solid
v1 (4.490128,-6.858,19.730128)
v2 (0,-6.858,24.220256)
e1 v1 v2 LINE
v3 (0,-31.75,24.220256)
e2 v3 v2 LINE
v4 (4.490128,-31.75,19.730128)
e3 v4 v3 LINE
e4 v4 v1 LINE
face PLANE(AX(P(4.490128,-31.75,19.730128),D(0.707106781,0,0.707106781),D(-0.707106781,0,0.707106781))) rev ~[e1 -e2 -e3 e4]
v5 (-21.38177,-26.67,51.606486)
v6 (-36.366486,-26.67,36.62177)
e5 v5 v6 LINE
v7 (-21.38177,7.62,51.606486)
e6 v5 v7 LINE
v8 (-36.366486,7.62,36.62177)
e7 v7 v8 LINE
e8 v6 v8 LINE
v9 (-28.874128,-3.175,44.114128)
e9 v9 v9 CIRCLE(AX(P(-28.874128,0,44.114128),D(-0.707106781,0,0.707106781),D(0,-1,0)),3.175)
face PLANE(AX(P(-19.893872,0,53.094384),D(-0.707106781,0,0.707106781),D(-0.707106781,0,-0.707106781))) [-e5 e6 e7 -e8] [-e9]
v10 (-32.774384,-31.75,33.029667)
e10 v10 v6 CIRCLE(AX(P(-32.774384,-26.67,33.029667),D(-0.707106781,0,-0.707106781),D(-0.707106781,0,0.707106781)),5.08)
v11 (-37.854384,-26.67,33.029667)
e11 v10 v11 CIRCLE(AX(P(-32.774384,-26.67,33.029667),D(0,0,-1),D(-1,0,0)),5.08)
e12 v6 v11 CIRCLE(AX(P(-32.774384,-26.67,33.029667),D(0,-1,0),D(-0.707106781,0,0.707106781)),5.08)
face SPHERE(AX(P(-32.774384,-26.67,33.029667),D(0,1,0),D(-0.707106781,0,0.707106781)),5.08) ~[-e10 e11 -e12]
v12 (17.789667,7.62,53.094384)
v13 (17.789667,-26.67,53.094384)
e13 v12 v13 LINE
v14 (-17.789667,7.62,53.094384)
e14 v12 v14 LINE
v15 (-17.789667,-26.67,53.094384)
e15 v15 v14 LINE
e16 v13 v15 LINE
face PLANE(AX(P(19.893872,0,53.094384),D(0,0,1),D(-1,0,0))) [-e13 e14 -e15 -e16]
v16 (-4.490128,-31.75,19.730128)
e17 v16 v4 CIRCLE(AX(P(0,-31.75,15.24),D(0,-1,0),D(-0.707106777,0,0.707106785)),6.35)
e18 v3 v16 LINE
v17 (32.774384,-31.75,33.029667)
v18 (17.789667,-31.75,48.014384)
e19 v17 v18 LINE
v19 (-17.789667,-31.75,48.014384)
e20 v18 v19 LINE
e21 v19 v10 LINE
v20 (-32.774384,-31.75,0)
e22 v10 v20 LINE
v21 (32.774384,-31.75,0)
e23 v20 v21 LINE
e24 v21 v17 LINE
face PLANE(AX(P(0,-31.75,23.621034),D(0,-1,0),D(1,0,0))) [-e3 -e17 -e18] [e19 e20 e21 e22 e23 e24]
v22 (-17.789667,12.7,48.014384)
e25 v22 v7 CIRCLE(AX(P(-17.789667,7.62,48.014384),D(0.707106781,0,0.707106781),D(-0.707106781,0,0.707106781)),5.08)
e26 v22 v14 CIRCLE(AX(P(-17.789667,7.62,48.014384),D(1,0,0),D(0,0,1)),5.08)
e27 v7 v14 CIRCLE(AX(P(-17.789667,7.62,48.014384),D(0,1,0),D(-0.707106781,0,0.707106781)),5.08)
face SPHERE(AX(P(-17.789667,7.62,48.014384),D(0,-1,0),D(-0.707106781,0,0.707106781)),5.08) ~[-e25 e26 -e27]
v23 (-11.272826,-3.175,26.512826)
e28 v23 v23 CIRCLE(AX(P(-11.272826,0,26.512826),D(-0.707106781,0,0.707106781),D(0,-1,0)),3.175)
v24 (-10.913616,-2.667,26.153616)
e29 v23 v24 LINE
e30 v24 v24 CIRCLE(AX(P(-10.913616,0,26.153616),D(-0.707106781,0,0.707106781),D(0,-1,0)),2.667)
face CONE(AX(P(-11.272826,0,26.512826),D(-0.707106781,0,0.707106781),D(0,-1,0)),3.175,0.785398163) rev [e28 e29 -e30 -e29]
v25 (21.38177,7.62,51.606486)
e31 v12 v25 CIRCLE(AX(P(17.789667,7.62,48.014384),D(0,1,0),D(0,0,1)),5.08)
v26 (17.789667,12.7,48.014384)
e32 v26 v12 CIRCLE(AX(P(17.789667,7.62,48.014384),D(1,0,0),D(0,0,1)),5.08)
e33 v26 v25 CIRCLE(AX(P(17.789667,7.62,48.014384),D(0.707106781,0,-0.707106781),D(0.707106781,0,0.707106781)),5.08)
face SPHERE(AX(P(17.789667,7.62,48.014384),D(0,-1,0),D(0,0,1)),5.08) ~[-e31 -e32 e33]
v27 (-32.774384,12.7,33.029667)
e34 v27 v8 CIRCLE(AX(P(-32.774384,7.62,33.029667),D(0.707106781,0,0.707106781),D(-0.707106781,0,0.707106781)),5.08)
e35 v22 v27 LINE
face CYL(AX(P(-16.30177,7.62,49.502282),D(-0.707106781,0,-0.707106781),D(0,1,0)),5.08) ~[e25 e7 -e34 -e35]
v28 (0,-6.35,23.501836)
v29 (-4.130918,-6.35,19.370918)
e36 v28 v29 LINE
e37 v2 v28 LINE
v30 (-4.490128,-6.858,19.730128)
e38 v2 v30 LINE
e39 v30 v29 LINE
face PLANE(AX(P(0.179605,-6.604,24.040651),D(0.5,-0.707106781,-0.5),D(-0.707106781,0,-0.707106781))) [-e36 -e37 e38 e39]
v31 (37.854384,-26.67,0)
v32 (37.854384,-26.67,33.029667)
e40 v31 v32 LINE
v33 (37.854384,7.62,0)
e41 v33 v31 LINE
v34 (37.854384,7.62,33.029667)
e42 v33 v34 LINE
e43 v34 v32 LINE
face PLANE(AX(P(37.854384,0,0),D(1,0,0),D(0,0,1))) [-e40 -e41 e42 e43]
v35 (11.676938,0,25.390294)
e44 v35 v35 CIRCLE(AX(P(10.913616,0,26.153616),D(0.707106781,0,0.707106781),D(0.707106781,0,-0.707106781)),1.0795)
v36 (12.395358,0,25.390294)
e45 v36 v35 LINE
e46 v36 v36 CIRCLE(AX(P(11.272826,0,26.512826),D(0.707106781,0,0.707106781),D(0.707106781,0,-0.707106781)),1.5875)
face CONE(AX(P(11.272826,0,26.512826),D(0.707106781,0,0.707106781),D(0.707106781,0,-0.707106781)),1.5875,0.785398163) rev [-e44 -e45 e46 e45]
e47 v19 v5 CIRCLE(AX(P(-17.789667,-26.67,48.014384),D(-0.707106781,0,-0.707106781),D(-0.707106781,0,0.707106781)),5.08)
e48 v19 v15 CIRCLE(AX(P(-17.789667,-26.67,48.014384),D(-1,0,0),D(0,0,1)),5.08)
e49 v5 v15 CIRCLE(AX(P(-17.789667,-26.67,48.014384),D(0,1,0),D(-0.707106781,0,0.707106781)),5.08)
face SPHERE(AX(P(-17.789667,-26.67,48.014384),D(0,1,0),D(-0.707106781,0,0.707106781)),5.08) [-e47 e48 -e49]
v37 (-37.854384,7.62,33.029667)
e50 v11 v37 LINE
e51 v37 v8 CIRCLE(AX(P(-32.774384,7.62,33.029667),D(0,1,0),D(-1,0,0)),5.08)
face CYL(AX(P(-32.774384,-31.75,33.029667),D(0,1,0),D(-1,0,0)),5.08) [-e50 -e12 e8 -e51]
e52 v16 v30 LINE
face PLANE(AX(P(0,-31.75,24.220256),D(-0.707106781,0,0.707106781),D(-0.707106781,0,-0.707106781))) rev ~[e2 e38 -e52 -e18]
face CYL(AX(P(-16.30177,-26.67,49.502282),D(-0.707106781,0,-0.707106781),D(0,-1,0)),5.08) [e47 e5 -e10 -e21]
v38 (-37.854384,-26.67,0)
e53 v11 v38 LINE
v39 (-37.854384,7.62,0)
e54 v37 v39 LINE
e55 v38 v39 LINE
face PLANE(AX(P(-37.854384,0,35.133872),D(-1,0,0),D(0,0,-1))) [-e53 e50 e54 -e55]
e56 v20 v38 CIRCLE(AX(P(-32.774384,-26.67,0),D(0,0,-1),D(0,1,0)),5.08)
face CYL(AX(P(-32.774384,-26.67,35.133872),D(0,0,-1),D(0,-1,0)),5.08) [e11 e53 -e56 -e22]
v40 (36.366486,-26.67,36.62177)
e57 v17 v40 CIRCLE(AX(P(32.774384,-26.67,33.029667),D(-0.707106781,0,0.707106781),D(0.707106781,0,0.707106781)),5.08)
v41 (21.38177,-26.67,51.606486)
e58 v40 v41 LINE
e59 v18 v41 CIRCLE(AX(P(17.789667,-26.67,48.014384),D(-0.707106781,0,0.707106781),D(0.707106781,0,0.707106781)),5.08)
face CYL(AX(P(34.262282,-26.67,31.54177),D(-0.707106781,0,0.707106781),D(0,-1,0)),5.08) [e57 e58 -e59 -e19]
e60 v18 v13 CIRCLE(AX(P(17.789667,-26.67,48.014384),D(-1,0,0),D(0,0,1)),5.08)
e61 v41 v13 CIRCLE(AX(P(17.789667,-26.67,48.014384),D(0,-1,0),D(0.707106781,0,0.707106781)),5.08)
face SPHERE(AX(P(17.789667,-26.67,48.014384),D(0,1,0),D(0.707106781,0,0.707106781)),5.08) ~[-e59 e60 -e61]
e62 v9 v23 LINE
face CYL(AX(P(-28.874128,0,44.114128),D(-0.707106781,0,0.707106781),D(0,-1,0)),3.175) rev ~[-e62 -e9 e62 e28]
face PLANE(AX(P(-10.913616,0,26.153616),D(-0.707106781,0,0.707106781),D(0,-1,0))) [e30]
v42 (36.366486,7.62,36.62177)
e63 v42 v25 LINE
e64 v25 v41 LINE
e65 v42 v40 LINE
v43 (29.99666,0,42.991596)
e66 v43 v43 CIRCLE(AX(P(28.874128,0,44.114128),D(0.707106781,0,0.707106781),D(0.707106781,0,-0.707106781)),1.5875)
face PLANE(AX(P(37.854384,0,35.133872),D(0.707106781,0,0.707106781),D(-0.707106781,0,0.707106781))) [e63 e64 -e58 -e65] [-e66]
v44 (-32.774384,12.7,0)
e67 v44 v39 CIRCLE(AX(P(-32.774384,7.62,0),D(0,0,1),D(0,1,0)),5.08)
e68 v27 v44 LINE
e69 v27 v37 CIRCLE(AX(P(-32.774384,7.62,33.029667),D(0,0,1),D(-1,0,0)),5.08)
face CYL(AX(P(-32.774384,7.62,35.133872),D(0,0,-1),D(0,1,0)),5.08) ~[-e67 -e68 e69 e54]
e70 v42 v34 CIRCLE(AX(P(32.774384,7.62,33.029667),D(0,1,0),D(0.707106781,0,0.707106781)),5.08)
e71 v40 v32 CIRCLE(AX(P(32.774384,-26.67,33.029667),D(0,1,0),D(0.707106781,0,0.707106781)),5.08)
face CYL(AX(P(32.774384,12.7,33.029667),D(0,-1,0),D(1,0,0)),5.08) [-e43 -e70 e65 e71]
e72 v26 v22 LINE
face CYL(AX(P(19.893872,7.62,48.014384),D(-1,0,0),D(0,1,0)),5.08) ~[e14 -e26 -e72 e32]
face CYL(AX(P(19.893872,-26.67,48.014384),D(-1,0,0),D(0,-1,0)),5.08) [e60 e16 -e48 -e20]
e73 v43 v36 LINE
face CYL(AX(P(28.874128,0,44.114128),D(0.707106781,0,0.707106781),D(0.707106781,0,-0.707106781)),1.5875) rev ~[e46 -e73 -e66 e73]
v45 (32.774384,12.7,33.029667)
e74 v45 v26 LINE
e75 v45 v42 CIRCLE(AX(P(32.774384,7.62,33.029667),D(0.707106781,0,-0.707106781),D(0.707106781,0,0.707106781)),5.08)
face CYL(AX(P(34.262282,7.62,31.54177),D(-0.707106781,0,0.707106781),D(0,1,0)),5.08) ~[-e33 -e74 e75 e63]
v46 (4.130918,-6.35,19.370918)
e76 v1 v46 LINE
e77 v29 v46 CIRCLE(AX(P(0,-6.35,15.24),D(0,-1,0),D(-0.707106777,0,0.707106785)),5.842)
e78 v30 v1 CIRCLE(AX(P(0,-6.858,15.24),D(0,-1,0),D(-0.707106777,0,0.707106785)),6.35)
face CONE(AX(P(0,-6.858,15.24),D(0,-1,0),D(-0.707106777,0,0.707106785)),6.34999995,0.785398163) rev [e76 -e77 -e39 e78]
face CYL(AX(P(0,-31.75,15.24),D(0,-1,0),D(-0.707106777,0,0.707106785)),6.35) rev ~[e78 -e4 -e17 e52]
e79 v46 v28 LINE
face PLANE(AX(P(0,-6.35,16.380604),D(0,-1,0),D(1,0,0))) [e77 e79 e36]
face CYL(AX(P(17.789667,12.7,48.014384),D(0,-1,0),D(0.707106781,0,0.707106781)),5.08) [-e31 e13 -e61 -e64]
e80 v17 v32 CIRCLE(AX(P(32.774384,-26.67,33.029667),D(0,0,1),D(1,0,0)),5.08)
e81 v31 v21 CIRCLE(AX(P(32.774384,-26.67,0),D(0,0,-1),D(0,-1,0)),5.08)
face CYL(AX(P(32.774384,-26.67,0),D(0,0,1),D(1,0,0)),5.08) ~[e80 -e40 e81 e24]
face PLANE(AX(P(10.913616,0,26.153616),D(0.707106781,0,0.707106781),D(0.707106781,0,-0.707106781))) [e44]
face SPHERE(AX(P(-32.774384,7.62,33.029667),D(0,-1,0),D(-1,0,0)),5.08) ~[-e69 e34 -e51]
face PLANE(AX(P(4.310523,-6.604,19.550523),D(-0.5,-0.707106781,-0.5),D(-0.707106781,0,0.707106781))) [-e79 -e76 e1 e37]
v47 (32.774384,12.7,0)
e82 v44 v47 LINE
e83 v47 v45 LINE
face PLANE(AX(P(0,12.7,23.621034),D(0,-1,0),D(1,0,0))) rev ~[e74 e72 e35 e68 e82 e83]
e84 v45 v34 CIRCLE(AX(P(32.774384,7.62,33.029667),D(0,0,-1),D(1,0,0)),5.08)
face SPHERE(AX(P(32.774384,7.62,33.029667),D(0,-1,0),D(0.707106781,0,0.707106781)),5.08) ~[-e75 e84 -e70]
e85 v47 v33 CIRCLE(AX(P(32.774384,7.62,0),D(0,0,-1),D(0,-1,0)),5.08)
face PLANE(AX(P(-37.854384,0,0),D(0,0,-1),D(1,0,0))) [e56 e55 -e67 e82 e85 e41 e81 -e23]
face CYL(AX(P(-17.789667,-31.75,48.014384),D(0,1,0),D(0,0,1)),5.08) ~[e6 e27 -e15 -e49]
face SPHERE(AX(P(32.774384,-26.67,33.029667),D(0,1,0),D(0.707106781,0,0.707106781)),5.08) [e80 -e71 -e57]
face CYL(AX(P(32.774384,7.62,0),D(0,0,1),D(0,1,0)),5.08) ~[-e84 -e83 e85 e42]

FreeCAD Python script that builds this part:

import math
import FreeCAD as App
import Part
import Sketcher

V = App.Vector
Q = App.Units.Quantity


def edges_at(feature, points):
    """Names of the edges that pass closest to the given points."""
    edges = feature.Shape.Edges
    near = lambda p: min(range(len(edges)), key=lambda i: edges[i].distToShape(Part.Vertex(*p))[0])
    return sorted({f"Edge{near(p) + 1}" for p in points})

doc = App.newDocument("Part")
body = doc.addObject("PartDesign::Body", "Body")

sketch1 = body.newObject("Sketcher::SketchObject", "Sketch")
sketch1.AttachmentSupport = (doc.getObject("XZ_Plane"), [""])
sketch1.MapMode = "FlatFace"
sketch1.addGeometry([
    Part.LineSegment(V(-38, 0, 0), V(38, 0, 0)),
    Part.LineSegment(V(38, 0, 0), V(38, 35, 0)),
    Part.LineSegment(V(38, 35, 0), V(20, 53, 0)),
    Part.LineSegment(V(20, 53, 0), V(-20, 53, 0)),
    Part.LineSegment(V(-20, 53, 0), V(-38, 35, 0)),
    Part.LineSegment(V(-38, 35, 0), V(-38, 0, 0)),
], False)
sketch1.addConstraint([
    Sketcher.Constraint("Coincident", 0, 2, 1, 1),
    Sketcher.Constraint("Coincident", 1, 2, 2, 1),
    Sketcher.Constraint("Coincident", 2, 2, 3, 1),
    Sketcher.Constraint("Coincident", 3, 2, 4, 1),
    Sketcher.Constraint("Coincident", 4, 2, 5, 1),
    Sketcher.Constraint("Coincident", 5, 2, 0, 1),
    Sketcher.Constraint("Horizontal", 0),
    Sketcher.Constraint("Vertical", 1),
    Sketcher.Constraint("Horizontal", 3),
    Sketcher.Constraint("Vertical", 5),
    Sketcher.Constraint("Symmetric", 0, 2, 5, 2, -1, 1),
    Sketcher.Constraint("Perpendicular", 2, 4),
    Sketcher.Constraint("Horizontal", 1, 2, 4, 2),
    Sketcher.Constraint("Equal", 2, 4),
    Sketcher.Constraint("Distance", 2, Q("1 in")),
    Sketcher.Constraint("DistanceX", 0, 1, 0, 2, Q("75.708768 mm")),
    Sketcher.Constraint("DistanceY", 1, 1, 1, 2, Q("35.133872 mm")),
])
pad1 = body.newObject("PartDesign::Pad", "Pad")
pad1.Profile = sketch1
pad1.Type = "TwoLengths"
pad1.Length = Q("1.25 in")
pad1.Length2 = Q("0.5 in")

sketch2 = body.newObject("Sketcher::SketchObject", "Sketch001")
sketch2.Placement = App.Placement(V(-36.494128, 0, 36.494128), App.Rotation(V(0, -1, 0), V(0.707106781, 0, 0.707106781), V(-0.707106781, 0, 0.707106781), "ZXY"))
sketch2.addGeometry(Part.Circle(V(0, 10.8, 0), V(0, 0, 1), 3.2), False)
sketch2.addConstraint([
    Sketcher.Constraint("PointOnObject", 0, 3, -2),
    Sketcher.Constraint("Diameter", 0, Q("0.25 in")),
    Sketcher.Constraint("DistanceY", -1, 1, 0, 3, Q("10.776307 mm")),
])
pocket1 = body.newObject("PartDesign::Pocket", "Pocket")
pocket1.Profile = sketch2
pocket1.Length = Q("1 in")

sketch3 = body.newObject("Sketcher::SketchObject", "Sketch002")
sketch3.Placement = App.Placement(V(36.494128, 0, 36.494128), App.Rotation(V(0.707106781, 0, -0.707106781), V(0, 0.999999999, 0), V(0.707106781, 0, 0.707106781), "ZXY"))
sketch3.addGeometry(Part.Circle(V(-10.8, 0, 0), V(0, 0, 1), 1.6), False)
sketch3.addConstraint([
    Sketcher.Constraint("PointOnObject", 0, 3, -1),
    Sketcher.Constraint("Diameter", 0, Q("0.125 in")),
    Sketcher.Constraint("DistanceX", 0, 3, -1, 1, Q("10.776307 mm")),
])
pocket2 = body.newObject("PartDesign::Pocket", "Pocket001")
pocket2.Profile = sketch3
pocket2.Length = Q("1 in")

sketch4 = body.newObject("Sketcher::SketchObject", "Sketch003")
sketch4.AttachmentSupport = (doc.getObject("XZ_Plane"), [""])
sketch4.MapMode = "FlatFace"
sketch4.AttachmentOffset = App.Placement(V(0, 0, 1.25 * 25.4), App.Rotation())
sketch4.addGeometry([
    Part.LineSegment(V(0, 24, 0), V(-4, 20, 0)),
    Part.ArcOfCircle(Part.Circle(V(0, 15, 0), V(0, 0, 1), 6), math.radians(135), math.radians(405)),
    Part.LineSegment(V(4, 20, 0), V(0, 24, 0)),
], False)
sketch4.addConstraint([
    Sketcher.Constraint("Tangent", 0, 2, 1, 1),
    Sketcher.Constraint("Tangent", 1, 2, 2, 1),
    Sketcher.Constraint("Coincident", 2, 2, 0, 1),
    Sketcher.Constraint("Symmetric", 0, 2, 1, 2, -2),
    Sketcher.Constraint("Perpendicular", 0, 2),
    Sketcher.Constraint("Radius", 1, Q("0.25 in")),
    Sketcher.Constraint("DistanceY", -1, 1, 1, 3, Q("0.6 in")),
])
pocket3 = body.newObject("PartDesign::Pocket", "Pocket002")
pocket3.Profile = sketch4
pocket3.Length = Q("1 in")
doc.recompute()

fillet = body.newObject("PartDesign::Fillet", "Fillet")
fillet.Base = (pocket3, edges_at(pocket3, [
    (-37.854, 12.7, 17.567),
    (-28.874, 12.7, 44.114),
    (0, 12.7, 53.094),
    (28.874, 12.7, 44.114),
    (37.854, 12.7, 17.567),
    (-19.894, -9.525, 53.094),
    (-37.854, -9.525, 35.134),
    (-28.874, -31.75, 44.114),
    (-37.854, -31.75, 17.567),
    (0, -31.75, 53.094),
    (19.894, -9.525, 53.094),
    (28.874, -31.75, 44.114),
    (37.854, -31.75, 17.567),
    (37.854, -9.525, 35.134),
]))
fillet.Radius = Q("0.2 in")
doc.recompute()

chamfer = body.newObject("PartDesign::Chamfer", "Chamfer")
chamfer.Base = (fillet, edges_at(fillet, [(0, -6.35, 8.89), (-10.914, 3.175, 26.154), (9.791, 0, 27.276)]))
chamfer.Size = Q("0.02 in")

doc.recompute()
